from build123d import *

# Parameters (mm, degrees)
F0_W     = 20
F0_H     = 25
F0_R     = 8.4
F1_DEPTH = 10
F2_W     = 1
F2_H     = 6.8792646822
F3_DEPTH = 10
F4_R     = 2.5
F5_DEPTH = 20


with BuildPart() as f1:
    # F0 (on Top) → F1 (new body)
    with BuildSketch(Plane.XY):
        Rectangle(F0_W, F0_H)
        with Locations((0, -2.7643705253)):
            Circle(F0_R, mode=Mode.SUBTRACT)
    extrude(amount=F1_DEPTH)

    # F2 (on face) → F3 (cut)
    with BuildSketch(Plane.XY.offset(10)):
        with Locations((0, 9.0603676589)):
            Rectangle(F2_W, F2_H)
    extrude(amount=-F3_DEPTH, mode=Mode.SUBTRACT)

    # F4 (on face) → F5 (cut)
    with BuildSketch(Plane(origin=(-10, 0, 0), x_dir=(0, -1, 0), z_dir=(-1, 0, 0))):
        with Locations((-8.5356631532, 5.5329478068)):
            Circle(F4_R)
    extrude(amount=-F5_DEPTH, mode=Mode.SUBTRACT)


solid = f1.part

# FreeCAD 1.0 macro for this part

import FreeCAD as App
import Part
import Sketcher

V = App.Vector
Q = App.Units.Quantity


def add_polygon(sketch, points):
    """Adds a closed chain of lines whose ends are joined by coincident constraints."""
    first, n = sketch.GeometryCount, len(points)
    for a, b in zip(points, points[1:] + points[:1]):
        sketch.addGeometry(Part.LineSegment(App.Vector(*a, 0), App.Vector(*b, 0)), False)
    for i in range(n):
        sketch.addConstraint(Sketcher.Constraint("Coincident", first + i, 2, first + (i + 1) % n, 1))

doc = App.newDocument("Part")
params = doc.addObject("Spreadsheet::Sheet", "Params")
for row, (alias, value) in enumerate([
    ("sketch1_diameter", "16.8 mm"),
    ("sketch1_width", "20 mm"),
    ("sketch1_height", "25 mm"),
    ("pad1_length", "10 mm"),
    ("sketch2_width", "1 mm"),
    ("pocket1_length", "10 mm"),
    ("sketch3_diameter", "5 mm"),
    ("pocket2_length", "20 mm"),
], start=1):
    params.set(f"A{row}", alias)
    params.set(f"B{row}", "=" + value)
    params.setAlias(f"B{row}", alias)

body = doc.addObject("PartDesign::Body", "Body")

# Sketch on XY plane
sketch1 = doc.addObject("Sketcher::SketchObject", "Sketch")
body.addObject(sketch1)
sketch1.AttachmentSupport = (doc.XY_Plane, [""])
sketch1.MapMode = "FlatFace"
add_polygon(sketch1, [(-10, 12), (-10, -12), (10, -12), (10, 12)])  # lines 0-3
sketch1.addGeometry(Part.Circle(V(0, -3, 0), V(0, 0, 1), 8), False)  # 4
sketch1.addConstraint([
    Sketcher.Constraint("Vertical", 0),
    Sketcher.Constraint("Horizontal", 1),
    Sketcher.Constraint("Vertical", 2),
    Sketcher.Constraint("Horizontal", 3),
    Sketcher.Constraint("Symmetric", 0, 2, 2, 2, -1, 1),
    Sketcher.Constraint("PointOnObject", 4, 3, -2),
    Sketcher.Constraint("Diameter", 4, Q("16.8 mm")),
    Sketcher.Constraint("DistanceX", 1, 1, 1, 2, Q("20 mm")),
    Sketcher.Constraint("DistanceY", 0, 2, 0, 1, Q("25 mm")),
    Sketcher.Constraint("DistanceY", 4, 3, -1, 1, Q("2.764371 mm")),
])
sketch1.setExpression("Constraints[10]", "Params.sketch1_diameter")
sketch1.setExpression("Constraints[11]", "Params.sketch1_width")
sketch1.setExpression("Constraints[12]", "Params.sketch1_height")
pad1 = doc.addObject("PartDesign::Pad", "Pad")
body.addObject(pad1)
pad1.Profile = sketch1
pad1.setExpression("Length", "Params.pad1_length")

# Sketch on XY plane
sketch2 = doc.addObject("Sketcher::SketchObject", "Sketch001")
body.addObject(sketch2)
sketch2.AttachmentSupport = (doc.XY_Plane, [""])
sketch2.MapMode = "FlatFace"
sketch2.AttachmentOffset = App.Placement(V(0, 0, 10), App.Rotation())
add_polygon(sketch2, [(-0.5, 12.5), (-0.5, 5.6), (0.5, 5.6), (0.5, 12.5)])  # lines 0-3
sketch2.addConstraint([
    Sketcher.Constraint("Vertical", 0),
    Sketcher.Constraint("Horizontal", 1),
    Sketcher.Constraint("Vertical", 2),
    Sketcher.Constraint("Horizontal", 3),
    Sketcher.Constraint("DistanceX", 1, 1, 1, 2, Q("1 mm")),
    Sketcher.Constraint("DistanceX", 0, 2, -1, 1, Q("0.5 mm")),
    Sketcher.Constraint("DistanceY", -1, 1, 2, 2, Q("12.5 mm")),
    Sketcher.Constraint("DistanceY", 0, 2, 0, 1, Q("6.879265 mm")),
])
sketch2.setExpression("Constraints[8]", "Params.sketch2_width")
pocket1 = doc.addObject("PartDesign::Pocket", "Pocket")
body.addObject(pocket1)
pocket1.Profile = sketch2
pocket1.setExpression("Length", "Params.pocket1_length")

# Sketch on YZ plane
sketch3 = doc.addObject("Sketcher::SketchObject", "Sketch002")
body.addObject(sketch3)
sketch3.AttachmentSupport = (doc.YZ_Plane, [""])
sketch3.MapMode = "FlatFace"
sketch3.AttachmentOffset = App.Placement(V(0, 0, -10), App.Rotation())
sketch3.addGeometry(Part.Circle(V(8.5, 5.5, 0), V(0, 0, 1), 2.5), False)
sketch3.addConstraint([
    Sketcher.Constraint("Diameter", 0, Q("5 mm")),
    Sketcher.Constraint("DistanceX", -1, 1, 0, 3, Q("8.535663 mm")),
    Sketcher.Constraint("DistanceY", -1, 1, 0, 3, Q("5.532948 mm")),
])
sketch3.setExpression("Constraints[0]", "Params.sketch3_diameter")
pocket2 = doc.addObject("PartDesign::Pocket", "Pocket001")
body.addObject(pocket2)
pocket2.Profile = sketch3
pocket2.setExpression("Length", "Params.pocket2_length")
pocket2.Reversed = True

doc.recompute()
